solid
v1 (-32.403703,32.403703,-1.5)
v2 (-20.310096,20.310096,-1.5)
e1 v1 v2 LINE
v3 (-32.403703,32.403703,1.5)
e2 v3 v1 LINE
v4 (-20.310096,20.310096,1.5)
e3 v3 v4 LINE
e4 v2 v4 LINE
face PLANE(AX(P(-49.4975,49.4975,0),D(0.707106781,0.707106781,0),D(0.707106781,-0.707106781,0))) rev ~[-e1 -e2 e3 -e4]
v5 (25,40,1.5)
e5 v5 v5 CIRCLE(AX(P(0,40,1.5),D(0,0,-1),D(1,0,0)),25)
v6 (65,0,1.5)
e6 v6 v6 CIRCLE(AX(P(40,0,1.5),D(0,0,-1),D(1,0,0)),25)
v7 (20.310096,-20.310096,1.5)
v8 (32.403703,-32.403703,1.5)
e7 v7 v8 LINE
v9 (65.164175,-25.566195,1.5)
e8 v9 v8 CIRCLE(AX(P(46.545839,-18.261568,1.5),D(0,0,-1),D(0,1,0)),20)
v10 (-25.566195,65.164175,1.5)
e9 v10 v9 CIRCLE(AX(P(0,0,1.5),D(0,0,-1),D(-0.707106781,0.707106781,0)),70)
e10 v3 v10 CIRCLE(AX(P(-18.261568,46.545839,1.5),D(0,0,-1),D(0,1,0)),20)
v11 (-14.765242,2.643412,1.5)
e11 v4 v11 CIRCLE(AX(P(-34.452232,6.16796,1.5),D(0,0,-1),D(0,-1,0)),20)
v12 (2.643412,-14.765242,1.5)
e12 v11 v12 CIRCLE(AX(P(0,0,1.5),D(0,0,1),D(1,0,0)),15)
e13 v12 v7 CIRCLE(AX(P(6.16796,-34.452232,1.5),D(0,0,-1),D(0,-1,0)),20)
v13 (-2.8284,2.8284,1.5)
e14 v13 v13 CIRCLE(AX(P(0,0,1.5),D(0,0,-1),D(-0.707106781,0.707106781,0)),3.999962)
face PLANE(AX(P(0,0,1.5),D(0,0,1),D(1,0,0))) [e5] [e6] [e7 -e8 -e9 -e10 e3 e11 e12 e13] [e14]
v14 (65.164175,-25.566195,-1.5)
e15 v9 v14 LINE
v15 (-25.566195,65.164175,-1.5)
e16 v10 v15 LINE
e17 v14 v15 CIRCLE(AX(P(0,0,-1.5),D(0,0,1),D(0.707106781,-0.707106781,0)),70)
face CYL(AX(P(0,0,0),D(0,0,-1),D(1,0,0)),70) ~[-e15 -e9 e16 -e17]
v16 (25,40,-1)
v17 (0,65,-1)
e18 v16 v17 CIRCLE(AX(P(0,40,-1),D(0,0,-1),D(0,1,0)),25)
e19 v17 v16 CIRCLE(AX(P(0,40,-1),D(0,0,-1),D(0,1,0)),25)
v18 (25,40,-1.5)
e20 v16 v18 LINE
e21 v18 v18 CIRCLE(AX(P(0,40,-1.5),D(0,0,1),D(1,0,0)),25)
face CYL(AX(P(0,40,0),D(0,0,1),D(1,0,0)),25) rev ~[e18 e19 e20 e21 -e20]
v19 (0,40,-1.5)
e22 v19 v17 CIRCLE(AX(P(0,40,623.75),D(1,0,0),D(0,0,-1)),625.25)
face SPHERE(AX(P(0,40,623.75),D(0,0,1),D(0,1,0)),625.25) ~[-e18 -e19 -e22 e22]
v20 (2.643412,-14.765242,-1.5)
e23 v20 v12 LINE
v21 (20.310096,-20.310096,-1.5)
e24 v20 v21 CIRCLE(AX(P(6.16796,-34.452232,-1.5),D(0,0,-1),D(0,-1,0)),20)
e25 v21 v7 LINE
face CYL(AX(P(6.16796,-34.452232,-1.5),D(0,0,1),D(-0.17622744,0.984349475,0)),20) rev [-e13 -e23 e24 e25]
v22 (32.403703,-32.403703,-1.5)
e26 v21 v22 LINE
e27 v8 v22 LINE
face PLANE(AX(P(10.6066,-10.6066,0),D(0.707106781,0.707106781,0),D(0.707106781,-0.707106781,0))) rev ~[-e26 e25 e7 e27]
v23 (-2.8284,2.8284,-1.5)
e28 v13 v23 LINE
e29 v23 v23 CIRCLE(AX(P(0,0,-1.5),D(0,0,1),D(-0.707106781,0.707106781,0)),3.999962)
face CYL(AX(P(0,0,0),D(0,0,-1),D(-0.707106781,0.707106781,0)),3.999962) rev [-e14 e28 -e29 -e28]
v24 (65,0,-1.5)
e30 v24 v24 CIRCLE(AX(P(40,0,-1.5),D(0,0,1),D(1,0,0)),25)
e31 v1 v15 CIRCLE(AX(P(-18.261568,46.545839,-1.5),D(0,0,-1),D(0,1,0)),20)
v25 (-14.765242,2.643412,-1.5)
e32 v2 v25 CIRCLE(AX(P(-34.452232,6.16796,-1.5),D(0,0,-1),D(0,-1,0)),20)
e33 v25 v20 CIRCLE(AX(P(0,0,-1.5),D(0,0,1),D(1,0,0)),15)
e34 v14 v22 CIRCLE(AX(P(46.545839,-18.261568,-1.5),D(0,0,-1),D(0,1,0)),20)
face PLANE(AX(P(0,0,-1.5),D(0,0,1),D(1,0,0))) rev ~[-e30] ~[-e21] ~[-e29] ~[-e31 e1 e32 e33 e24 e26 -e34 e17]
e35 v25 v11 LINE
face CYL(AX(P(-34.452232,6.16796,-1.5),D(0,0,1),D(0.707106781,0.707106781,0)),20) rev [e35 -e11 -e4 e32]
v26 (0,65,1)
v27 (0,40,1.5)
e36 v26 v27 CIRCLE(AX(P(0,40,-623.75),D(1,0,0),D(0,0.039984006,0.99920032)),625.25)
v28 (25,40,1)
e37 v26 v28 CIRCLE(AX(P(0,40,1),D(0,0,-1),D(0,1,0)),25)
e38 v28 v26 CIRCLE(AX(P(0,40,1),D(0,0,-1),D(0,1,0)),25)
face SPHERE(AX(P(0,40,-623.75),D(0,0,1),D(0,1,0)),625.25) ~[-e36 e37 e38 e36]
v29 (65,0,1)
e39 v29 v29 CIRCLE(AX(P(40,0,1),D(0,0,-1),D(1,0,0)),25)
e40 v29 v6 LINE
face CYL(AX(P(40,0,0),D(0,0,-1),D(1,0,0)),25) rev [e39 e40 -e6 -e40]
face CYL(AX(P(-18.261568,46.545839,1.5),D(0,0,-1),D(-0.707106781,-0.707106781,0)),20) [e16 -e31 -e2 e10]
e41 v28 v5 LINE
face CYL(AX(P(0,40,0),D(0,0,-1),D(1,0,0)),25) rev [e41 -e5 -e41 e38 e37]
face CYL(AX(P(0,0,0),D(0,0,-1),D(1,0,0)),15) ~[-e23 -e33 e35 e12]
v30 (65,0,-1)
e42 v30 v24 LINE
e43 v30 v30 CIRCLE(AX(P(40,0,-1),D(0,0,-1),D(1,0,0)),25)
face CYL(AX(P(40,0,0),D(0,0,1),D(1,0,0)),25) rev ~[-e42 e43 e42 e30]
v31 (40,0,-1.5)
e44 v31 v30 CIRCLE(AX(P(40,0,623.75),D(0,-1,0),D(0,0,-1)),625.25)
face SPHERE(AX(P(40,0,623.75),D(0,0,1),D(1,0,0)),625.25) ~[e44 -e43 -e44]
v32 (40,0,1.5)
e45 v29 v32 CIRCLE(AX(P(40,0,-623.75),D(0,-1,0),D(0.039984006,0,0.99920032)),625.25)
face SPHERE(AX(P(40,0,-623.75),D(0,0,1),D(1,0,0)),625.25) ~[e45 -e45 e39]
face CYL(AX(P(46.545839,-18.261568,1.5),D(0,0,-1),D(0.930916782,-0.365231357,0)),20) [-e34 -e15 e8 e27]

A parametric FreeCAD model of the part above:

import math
import FreeCAD as App
import Part
import Sketcher
from FreeCAD import Vector
Q = App.Units.Quantity


def edges_at(feature, points):
    """Names of the edges that pass closest to the given points."""
    edges = feature.Shape.Edges
    near = lambda p: min(range(len(edges)), key=lambda i: edges[i].distToShape(Part.Vertex(*p))[0])
    return sorted({f"Edge{near(p) + 1}" for p in points})

doc = App.newDocument("Part")
body = doc.addObject("PartDesign::Body", "Body")

# Sketch on XY plane
sketch1 = body.newObject("Sketcher::SketchObject", "Sketch")
sketch1.AttachmentSupport = (doc.getObject("XY_Plane"), [""])
sketch1.MapMode = "FlatFace"
sketch1.addGeometry(Part.LineSegment(Vector(-49.5, 49.5, 0), Vector(-10.6, 10.6, 0)), False)
sketch1.addGeometry(Part.ArcOfCircle(Part.Circle(Vector(0, 0, 0), Vector(0, 0, 1), 15), math.radians(135), math.radians(315)), False)
sketch1.addGeometry(Part.LineSegment(Vector(10.6, -10.6, 0), Vector(49.5, -49.5, 0)), False)
sketch1.addGeometry(Part.ArcOfCircle(Part.Circle(Vector(0, 0, 0), Vector(0, 0, 1), 70), math.radians(-45), math.radians(135)), False)
sketch1.addGeometry(Part.Circle(Vector(40, 0, 0), Vector(0, 0, 1), 25), False)
sketch1.addGeometry(Part.Circle(Vector(0, 40, 0), Vector(0, 0, 1), 25), False)
sketch1.addGeometry(Part.Circle(Vector(0, 0, 0), Vector(0, 0, 1), 4), False)
sketch1.addConstraint(Sketcher.Constraint("Coincident", 0, 2, 1, 1))
sketch1.addConstraint(Sketcher.Constraint("Coincident", 1, 2, 2, 1))
sketch1.addConstraint(Sketcher.Constraint("Coincident", 2, 2, 3, 1))
sketch1.addConstraint(Sketcher.Constraint("Coincident", 3, 2, 0, 1))
sketch1.addConstraint(Sketcher.Constraint("Coincident", 1, 3, -1, 1))
sketch1.addConstraint(Sketcher.Constraint("Coincident", 3, 3, -1, 1))
sketch1.addConstraint(Sketcher.Constraint("Coincident", 6, 3, -1, 1))
sketch1.addConstraint(Sketcher.Constraint("Equal", 4, 5))
sketch1.addConstraint(Sketcher.Constraint("PointOnObject", 4, 3, -1))
sketch1.addConstraint(Sketcher.Constraint("PointOnObject", 5, 3, -2))
sketch1.addConstraint(Sketcher.Constraint("Parallel", 0, 2))
sketch1.addConstraint(Sketcher.Constraint("Diameter", 4, Q("50 mm")))
sketch1.addConstraint(Sketcher.Constraint("Diameter", 6, Q("8 mm")))
sketch1.addConstraint(Sketcher.Constraint("Radius", 1, Q("15 mm")))
sketch1.addConstraint(Sketcher.Constraint("Angle", 0, Q("-45 deg")))
sketch1.addConstraint(Sketcher.Constraint("Radius", 3, Q("70 mm")))
sketch1.addConstraint(Sketcher.Constraint("DistanceX", -1, 1, 4, 3, Q("40 mm")))
sketch1.addConstraint(Sketcher.Constraint("DistanceY", -1, 1, 5, 3, Q("40 mm")))
sketch1.addConstraint(Sketcher.Constraint("DistanceX", 0, 2, -1, 1, Q("10.6066 mm")))
sketch1.addConstraint(Sketcher.Constraint("DistanceX", -1, 1, 1, 2, Q("10.6066 mm")))
pad1 = body.newObject("PartDesign::Pad", "Pad")
pad1.Profile = sketch1
pad1.Length = 3
pad1.Midplane = True
doc.recompute()

fillet = body.newObject("PartDesign::Fillet", "Fillet")
fillet.Base = (pad1, edges_at(pad1, [
    (-49.498, 49.498, 0.75),
    (-49.498, 49.498, -0.75),
    (49.498, -49.498, 0.75),
    (49.498, -49.498, -0.75),
    (10.607, -10.607, 0.75),
    (10.607, -10.607, -0.75),
    (-10.607, 10.607, 0.75),
    (-10.607, 10.607, -0.75),
]))
fillet.Radius = 20

# Sketch on YZ plane
sketch2 = body.newObject("Sketcher::SketchObject", "Sketch001")
sketch2.AttachmentSupport = (doc.getObject("YZ_Plane"), [""])
sketch2.MapMode = "FlatFace"
sketch2.addGeometry(Part.ArcOfCircle(Part.Circle(Vector(40, -623.8, 0), Vector(0, 0, 1), 625.2), math.radians(87.71), math.radians(90)), False)
sketch2.addGeometry(Part.LineSegment(Vector(40, 1.5, 0), Vector(40, -1.5, 0)), False)
sketch2.addGeometry(Part.ArcOfCircle(Part.Circle(Vector(40, 623.8, 0), Vector(0, 0, 1), 625.2), math.radians(-90), math.radians(-87.71)), False)
sketch2.addGeometry(Part.LineSegment(Vector(65, -1, 0), Vector(65, 1, 0)), False)
sketch2.addGeometry(Part.LineSegment(Vector(40, 623.8, 0), Vector(40, -623.8, 0)), True)  # axis
sketch2.addConstraint(Sketcher.Constraint("Coincident", 0, 2, 1, 1))
sketch2.addConstraint(Sketcher.Constraint("Coincident", 1, 2, 2, 1))
sketch2.addConstraint(Sketcher.Constraint("Coincident", 2, 2, 3, 1))
sketch2.addConstraint(Sketcher.Constraint("Coincident", 3, 2, 0, 1))
sketch2.addConstraint(Sketcher.Constraint("Vertical", 1))
sketch2.addConstraint(Sketcher.Constraint("Vertical", 3))
sketch2.addConstraint(Sketcher.Constraint("Vertical", 4))
sketch2.addConstraint(Sketcher.Constraint("Coincident", 4, 1, 2, 3))
sketch2.addConstraint(Sketcher.Constraint("Coincident", 4, 2, 0, 3))
sketch2.addConstraint(Sketcher.Constraint("Equal", 0, 2))
sketch2.addConstraint(Sketcher.Constraint("Vertical", 1, 2, 4, 1))
sketch2.addConstraint(Sketcher.Constraint("DistanceY", 3, 1, 3, 2, Q("2 mm")))
sketch2.addConstraint(Sketcher.Constraint("DistanceY", 1, 2, 1, 1, Q("3 mm")))
sketch2.addConstraint(Sketcher.Constraint("Radius", 0, Q("625.25 mm")))
sketch2.addConstraint(Sketcher.Constraint("DistanceX", -1, 1, 0, 3, Q("40 mm")))
sketch2.addConstraint(Sketcher.Constraint("DistanceY", 2, 2, -1, 1, Q("1 mm")))
revolution = body.newObject("PartDesign::Revolution", "Revolution")
revolution.Profile = sketch2
revolution.ReferenceAxis = (sketch2, ["Axis0"])
revolution.Angle = 360
doc.recompute()

polarpattern = body.newObject("PartDesign::PolarPattern", "PolarPattern")
polarpattern.Originals = [revolution]
polarpattern.Axis = (doc.getObject("Z_Axis"), [""])
polarpattern.Angle = 90
polarpattern.Occurrences = 2
polarpattern.Reversed = True
body.Tip = polarpattern

doc.recompute()
